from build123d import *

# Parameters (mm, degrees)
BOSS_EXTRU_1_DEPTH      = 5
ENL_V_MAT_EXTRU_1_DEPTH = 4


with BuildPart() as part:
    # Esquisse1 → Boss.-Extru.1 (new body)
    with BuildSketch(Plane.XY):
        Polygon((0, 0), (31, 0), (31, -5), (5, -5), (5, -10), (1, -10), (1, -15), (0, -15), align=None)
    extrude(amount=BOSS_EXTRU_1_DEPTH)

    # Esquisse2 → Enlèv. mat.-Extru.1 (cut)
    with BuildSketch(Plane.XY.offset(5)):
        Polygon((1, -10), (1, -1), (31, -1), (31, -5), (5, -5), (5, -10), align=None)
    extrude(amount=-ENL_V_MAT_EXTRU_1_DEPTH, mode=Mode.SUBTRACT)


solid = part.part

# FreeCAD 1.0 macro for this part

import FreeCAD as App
import Part
import Sketcher
from FreeCAD import Vector
Q = App.Units.Quantity

doc = App.newDocument("Part")
body = doc.addObject("PartDesign::Body", "Body")

sketch1 = body.newObject("Sketcher::SketchObject", "Sketch")
sketch1.AttachmentSupport = (doc.getObject("XY_Plane"), [""])
sketch1.MapMode = "FlatFace"
sketch1.addGeometry([
    Part.LineSegment(Vector(31, 0, 0), Vector(0, 0, 0)),
    Part.LineSegment(Vector(0, 0, 0), Vector(0, -15, 0)),
    Part.LineSegment(Vector(0, -15, 0), Vector(1, -15, 0)),
    Part.LineSegment(Vector(1, -15, 0), Vector(1, -10, 0)),
    Part.LineSegment(Vector(1, -10, 0), Vector(5, -10, 0)),
    Part.LineSegment(Vector(5, -10, 0), Vector(5, -5, 0)),
    Part.LineSegment(Vector(5, -5, 0), Vector(31, -5, 0)),
    Part.LineSegment(Vector(31, -5, 0), Vector(31, 0, 0)),
], False)
sketch1.addConstraint([
    Sketcher.Constraint("Coincident", 0, 2, 1, 1),
    Sketcher.Constraint("Coincident", 1, 2, 2, 1),
    Sketcher.Constraint("Coincident", 2, 2, 3, 1),
    Sketcher.Constraint("Coincident", 3, 2, 4, 1),
    Sketcher.Constraint("Coincident", 4, 2, 5, 1),
    Sketcher.Constraint("Coincident", 5, 2, 6, 1),
    Sketcher.Constraint("Coincident", 6, 2, 7, 1),
    Sketcher.Constraint("Coincident", 7, 2, 0, 1),
    Sketcher.Constraint("Horizontal", 0),
    Sketcher.Constraint("Vertical", 1),
    Sketcher.Constraint("Horizontal", 2),
    Sketcher.Constraint("Vertical", 3),
    Sketcher.Constraint("Horizontal", 4),
    Sketcher.Constraint("Vertical", 5),
    Sketcher.Constraint("Horizontal", 6),
    Sketcher.Constraint("Vertical", 7),
    Sketcher.Constraint("Coincident", 0, 2, -1, 1),
    Sketcher.Constraint("Equal", 3, 5),
    Sketcher.Constraint("Equal", 5, 7),
    Sketcher.Constraint("DistanceX", 0, 2, 0, 1, Q("31 mm")),
    Sketcher.Constraint("DistanceX", 2, 1, 2, 2, Q("1 mm")),
    Sketcher.Constraint("DistanceX", 4, 1, 4, 2, Q("4 mm")),
    Sketcher.Constraint("DistanceY", 1, 2, 1, 1, Q("15 mm")),
])
pad1 = body.newObject("PartDesign::Pad", "Pad")
pad1.Profile = sketch1
pad1.Length = 5

sketch2 = body.newObject("Sketcher::SketchObject", "Sketch001")
sketch2.AttachmentSupport = (doc.getObject("XY_Plane"), [""])
sketch2.MapMode = "FlatFace"
sketch2.AttachmentOffset = App.Placement(Vector(0, 0, 5), App.Rotation())
sketch2.addGeometry([
    Part.LineSegment(Vector(1, -1, 0), Vector(1, -10, 0)),
    Part.LineSegment(Vector(1, -10, 0), Vector(5, -10, 0)),
    Part.LineSegment(Vector(5, -10, 0), Vector(5, -5, 0)),
    Part.LineSegment(Vector(5, -5, 0), Vector(31, -5, 0)),
    Part.LineSegment(Vector(31, -5, 0), Vector(31, -1, 0)),
    Part.LineSegment(Vector(31, -1, 0), Vector(1, -1, 0)),
], False)
sketch2.addConstraint([
    Sketcher.Constraint("Coincident", 0, 2, 1, 1),
    Sketcher.Constraint("Coincident", 1, 2, 2, 1),
    Sketcher.Constraint("Coincident", 2, 2, 3, 1),
    Sketcher.Constraint("Coincident", 3, 2, 4, 1),
    Sketcher.Constraint("Coincident", 4, 2, 5, 1),
    Sketcher.Constraint("Coincident", 5, 2, 0, 1),
    Sketcher.Constraint("Vertical", 0),
    Sketcher.Constraint("Horizontal", 1),
    Sketcher.Constraint("Vertical", 2),
    Sketcher.Constraint("Horizontal", 3),
    Sketcher.Constraint("Vertical", 4),
    Sketcher.Constraint("Horizontal", 5),
    Sketcher.Constraint("Equal", 1, 4),
    Sketcher.Constraint("DistanceX", 1, 1, 1, 2, Q("4 mm")),
    Sketcher.Constraint("DistanceX", 3, 1, 3, 2, Q("26 mm")),
    Sketcher.Constraint("DistanceY", 0, 2, 0, 1, Q("9 mm")),
    Sketcher.Constraint("DistanceX", -1, 1, 0, 2, Q("1 mm")),
    Sketcher.Constraint("DistanceY", 0, 2, -1, 1, Q("10 mm")),
])
pocket1 = body.newObject("PartDesign::Pocket", "Pocket")
pocket1.Profile = sketch2
pocket1.Length = 4

doc.recompute()
